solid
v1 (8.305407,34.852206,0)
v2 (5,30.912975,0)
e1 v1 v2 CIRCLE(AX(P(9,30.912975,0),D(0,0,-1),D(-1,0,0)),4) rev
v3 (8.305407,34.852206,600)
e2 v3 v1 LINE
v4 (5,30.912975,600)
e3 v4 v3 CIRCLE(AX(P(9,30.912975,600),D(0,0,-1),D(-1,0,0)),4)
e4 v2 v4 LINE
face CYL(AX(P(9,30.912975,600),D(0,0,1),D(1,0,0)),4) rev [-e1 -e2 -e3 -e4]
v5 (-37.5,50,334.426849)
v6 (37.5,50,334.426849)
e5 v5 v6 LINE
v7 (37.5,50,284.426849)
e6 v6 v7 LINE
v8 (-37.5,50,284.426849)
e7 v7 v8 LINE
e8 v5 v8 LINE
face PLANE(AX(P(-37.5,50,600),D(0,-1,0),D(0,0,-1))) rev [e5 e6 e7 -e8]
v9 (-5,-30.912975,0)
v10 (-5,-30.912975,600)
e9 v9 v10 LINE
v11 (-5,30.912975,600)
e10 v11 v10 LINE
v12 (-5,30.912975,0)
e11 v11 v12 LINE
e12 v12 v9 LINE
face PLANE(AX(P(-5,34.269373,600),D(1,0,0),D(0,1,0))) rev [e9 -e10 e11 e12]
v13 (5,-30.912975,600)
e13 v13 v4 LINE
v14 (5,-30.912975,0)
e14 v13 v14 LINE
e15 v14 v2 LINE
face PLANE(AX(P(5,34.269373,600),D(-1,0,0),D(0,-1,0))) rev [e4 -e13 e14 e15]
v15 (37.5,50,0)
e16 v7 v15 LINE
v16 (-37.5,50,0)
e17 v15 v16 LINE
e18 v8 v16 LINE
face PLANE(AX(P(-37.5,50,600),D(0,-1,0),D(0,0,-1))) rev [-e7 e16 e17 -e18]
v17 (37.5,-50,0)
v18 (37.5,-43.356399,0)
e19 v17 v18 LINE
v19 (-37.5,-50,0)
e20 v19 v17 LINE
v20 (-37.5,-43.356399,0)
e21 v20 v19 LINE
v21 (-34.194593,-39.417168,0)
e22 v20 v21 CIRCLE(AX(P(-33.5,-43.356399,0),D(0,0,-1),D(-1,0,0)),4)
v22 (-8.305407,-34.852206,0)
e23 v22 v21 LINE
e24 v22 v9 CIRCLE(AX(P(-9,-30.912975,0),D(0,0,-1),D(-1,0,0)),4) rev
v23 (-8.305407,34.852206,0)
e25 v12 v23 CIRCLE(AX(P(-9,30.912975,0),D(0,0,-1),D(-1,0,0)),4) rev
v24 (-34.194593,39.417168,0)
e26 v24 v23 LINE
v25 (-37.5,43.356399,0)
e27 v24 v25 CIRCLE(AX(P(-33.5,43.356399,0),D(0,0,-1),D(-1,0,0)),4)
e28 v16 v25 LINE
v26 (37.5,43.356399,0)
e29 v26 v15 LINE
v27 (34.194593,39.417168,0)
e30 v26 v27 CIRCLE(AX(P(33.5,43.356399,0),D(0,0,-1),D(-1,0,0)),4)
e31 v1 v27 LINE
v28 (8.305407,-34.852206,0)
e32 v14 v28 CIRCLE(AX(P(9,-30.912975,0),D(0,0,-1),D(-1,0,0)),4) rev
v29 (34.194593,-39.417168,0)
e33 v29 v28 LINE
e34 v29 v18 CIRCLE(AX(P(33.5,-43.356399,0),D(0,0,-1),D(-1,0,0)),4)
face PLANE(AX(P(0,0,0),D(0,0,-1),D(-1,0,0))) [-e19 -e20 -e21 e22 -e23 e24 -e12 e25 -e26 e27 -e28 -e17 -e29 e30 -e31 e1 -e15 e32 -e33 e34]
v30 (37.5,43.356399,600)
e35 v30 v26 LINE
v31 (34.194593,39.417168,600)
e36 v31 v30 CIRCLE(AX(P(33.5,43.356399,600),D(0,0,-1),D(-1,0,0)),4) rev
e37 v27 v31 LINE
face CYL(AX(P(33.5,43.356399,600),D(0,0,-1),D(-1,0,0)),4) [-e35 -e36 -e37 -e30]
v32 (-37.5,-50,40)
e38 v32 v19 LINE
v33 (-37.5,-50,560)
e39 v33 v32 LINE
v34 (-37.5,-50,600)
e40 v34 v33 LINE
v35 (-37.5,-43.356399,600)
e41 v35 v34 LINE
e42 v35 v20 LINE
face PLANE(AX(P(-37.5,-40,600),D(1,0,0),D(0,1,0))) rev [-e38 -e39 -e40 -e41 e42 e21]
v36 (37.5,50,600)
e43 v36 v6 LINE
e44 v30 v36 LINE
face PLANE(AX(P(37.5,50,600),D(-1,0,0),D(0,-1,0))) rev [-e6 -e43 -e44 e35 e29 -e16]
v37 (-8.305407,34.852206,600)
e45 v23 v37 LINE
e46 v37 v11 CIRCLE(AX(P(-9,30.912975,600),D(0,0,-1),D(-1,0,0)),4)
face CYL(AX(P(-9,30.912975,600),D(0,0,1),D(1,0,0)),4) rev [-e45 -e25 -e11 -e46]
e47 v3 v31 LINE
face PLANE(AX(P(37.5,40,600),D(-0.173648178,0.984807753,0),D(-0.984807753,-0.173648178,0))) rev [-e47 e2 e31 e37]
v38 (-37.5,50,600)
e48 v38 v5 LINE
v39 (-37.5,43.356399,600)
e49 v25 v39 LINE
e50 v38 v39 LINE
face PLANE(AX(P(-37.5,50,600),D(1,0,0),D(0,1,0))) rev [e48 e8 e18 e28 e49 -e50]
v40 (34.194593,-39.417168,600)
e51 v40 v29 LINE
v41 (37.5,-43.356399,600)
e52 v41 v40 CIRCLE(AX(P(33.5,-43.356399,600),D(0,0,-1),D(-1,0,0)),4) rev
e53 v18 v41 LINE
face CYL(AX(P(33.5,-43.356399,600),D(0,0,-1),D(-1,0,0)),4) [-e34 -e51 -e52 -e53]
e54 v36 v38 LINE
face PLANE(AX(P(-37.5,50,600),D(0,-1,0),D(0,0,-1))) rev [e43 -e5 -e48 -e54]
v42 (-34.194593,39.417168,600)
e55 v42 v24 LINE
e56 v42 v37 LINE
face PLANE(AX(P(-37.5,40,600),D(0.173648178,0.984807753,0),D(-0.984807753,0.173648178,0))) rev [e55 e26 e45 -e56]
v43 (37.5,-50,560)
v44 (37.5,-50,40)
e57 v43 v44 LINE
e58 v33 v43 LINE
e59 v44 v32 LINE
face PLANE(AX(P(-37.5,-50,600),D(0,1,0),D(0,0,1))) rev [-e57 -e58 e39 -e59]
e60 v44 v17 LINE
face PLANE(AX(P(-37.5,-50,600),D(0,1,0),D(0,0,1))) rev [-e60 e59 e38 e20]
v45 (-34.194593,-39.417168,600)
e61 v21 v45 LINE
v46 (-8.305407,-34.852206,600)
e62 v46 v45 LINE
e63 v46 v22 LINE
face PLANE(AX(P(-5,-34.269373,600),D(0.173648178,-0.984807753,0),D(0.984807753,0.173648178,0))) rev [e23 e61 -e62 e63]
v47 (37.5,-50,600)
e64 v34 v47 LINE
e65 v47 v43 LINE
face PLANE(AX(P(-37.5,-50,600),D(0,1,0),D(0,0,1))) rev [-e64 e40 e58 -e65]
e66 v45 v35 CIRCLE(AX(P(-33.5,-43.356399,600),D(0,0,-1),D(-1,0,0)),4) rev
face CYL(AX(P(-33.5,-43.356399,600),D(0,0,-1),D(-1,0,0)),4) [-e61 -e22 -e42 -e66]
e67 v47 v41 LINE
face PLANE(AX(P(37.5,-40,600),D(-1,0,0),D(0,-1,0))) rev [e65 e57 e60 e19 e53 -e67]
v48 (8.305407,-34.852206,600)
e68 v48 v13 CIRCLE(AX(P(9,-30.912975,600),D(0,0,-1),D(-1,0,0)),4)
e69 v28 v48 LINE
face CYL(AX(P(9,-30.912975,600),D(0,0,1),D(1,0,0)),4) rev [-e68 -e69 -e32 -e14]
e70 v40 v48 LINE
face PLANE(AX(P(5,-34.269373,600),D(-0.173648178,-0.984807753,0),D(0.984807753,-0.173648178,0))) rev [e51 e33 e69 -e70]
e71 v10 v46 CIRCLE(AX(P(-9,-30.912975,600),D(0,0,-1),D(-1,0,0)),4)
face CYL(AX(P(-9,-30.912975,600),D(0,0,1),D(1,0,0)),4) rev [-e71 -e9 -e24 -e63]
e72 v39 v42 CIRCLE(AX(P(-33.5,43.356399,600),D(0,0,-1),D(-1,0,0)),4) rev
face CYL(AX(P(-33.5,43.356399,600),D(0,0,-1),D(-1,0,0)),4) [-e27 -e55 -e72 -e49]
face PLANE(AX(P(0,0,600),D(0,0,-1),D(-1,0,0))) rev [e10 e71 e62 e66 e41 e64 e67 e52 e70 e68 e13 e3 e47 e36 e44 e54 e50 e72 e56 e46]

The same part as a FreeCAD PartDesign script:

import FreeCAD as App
import Part
import Sketcher
Q = App.Units.Quantity


def edges_at(feature, points):
    """Names of the edges that pass closest to the given points."""
    edges = feature.Shape.Edges
    near = lambda p: min(range(len(edges)), key=lambda i: edges[i].distToShape(Part.Vertex(*p))[0])
    return sorted({f"Edge{near(p) + 1}" for p in points})


def add_polygon(sketch, points):
    """Adds a closed chain of lines whose ends are joined by coincident constraints."""
    first, n = sketch.GeometryCount, len(points)
    for a, b in zip(points, points[1:] + points[:1]):
        sketch.addGeometry(Part.LineSegment(App.Vector(*a, 0), App.Vector(*b, 0)), False)
    for i in range(n):
        sketch.addConstraint(Sketcher.Constraint("Coincident", first + i, 2, first + (i + 1) % n, 1))

doc = App.newDocument("Part")
body = doc.addObject("PartDesign::Body", "Body")

sketch1 = body.newObject("Sketcher::SketchObject", "Sketch")
sketch1.AttachmentSupport = (doc.getObject("XY_Plane"), [""])
sketch1.MapMode = "FlatFace"
add_polygon(sketch1, [(37.5, 40), (37.5, 50), (-37.5, 50), (-37.5, 40), (-5, 34.269373), (-5, -34.269373), (-37.5, -40), (-37.5, -50), (37.5, -50), (37.5, -40), (5, -34.269373), (5, 34.269373)])
sketch1.addConstraint([
    Sketcher.Constraint("Vertical", 0),
    Sketcher.Constraint("Horizontal", 1),
    Sketcher.Constraint("Vertical", 2),
    Sketcher.Constraint("Vertical", 4),
    Sketcher.Constraint("Vertical", 6),
    Sketcher.Constraint("Horizontal", 7),
    Sketcher.Constraint("Vertical", 8),
    Sketcher.Constraint("Vertical", 10),
    Sketcher.Constraint("Symmetric", 0, 2, 6, 2, -1, 1),
    Sketcher.Constraint("Symmetric", 2, 2, 8, 2, -1, 1),
    Sketcher.Constraint("Symmetric", 3, 2, 9, 2, -1, 1),
    Sketcher.Constraint("Symmetric", 5, 2, 8, 2, -2),
    Sketcher.Constraint("Parallel", 5, 11),
    Sketcher.Constraint("Horizontal", 4, 2, 9, 2),
    Sketcher.Constraint("Horizontal", 3, 2, 10, 2),
    Sketcher.Constraint("DistanceX", 1, 2, 1, 1, 75.0),
    Sketcher.Constraint("DistanceY", 0, 1, 0, 2, 10.0),
    Sketcher.Constraint("Angle", 3, Q("-10 deg")),
    Sketcher.Constraint("DistanceY", -1, 1, 0, 2, 50.0),
    Sketcher.Constraint("DistanceX", 3, 2, -1, 1, 5.0),
])
pad1 = body.newObject("PartDesign::Pad", "Pad")
pad1.Profile = sketch1
pad1.Length = 600
doc.recompute()

fillet = body.newObject("PartDesign::Fillet", "Fillet")
fillet.Base = (pad1, edges_at(pad1, [
    (37.5, 40, 300),
    (5, 34.269, 300),
    (5, -34.269, 300),
    (37.5, -40, 300),
    (-37.5, -40, 300),
    (-5, -34.269, 300),
    (-5, 34.269, 300),
    (-37.5, 40, 300),
]))
fillet.Radius = 4

doc.recompute()
